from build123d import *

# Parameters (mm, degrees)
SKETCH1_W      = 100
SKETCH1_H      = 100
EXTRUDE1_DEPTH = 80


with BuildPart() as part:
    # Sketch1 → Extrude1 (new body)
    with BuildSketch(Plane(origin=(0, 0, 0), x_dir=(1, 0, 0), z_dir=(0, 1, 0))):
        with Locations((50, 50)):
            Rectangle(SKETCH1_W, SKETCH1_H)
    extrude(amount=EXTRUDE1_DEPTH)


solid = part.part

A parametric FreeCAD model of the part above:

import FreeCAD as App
import Part
import Sketcher

V = App.Vector
Q = App.Units.Quantity


def add_polygon(sketch, points):
    """Adds a closed chain of lines whose ends are joined by coincident constraints."""
    first, n = sketch.GeometryCount, len(points)
    for a, b in zip(points, points[1:] + points[:1]):
        sketch.addGeometry(Part.LineSegment(App.Vector(*a, 0), App.Vector(*b, 0)), False)
    for i in range(n):
        sketch.addConstraint(Sketcher.Constraint("Coincident", first + i, 2, first + (i + 1) % n, 1))

doc = App.newDocument("Part")
body = doc.addObject("PartDesign::Body", "Body")

# Sketch on XZ plane
sketch1 = body.newObject("Sketcher::SketchObject", "Sketch")
sketch1.AttachmentSupport = (doc.getObject("XZ_Plane"), [""])
sketch1.MapMode = "FlatFace"
add_polygon(sketch1, [(0, -100), (0, 0), (100, 0), (100, -100)])  # lines 0-3
sketch1.addConstraint([
    Sketcher.Constraint("Vertical", 0),
    Sketcher.Constraint("Horizontal", 1),
    Sketcher.Constraint("Vertical", 2),
    Sketcher.Constraint("Horizontal", 3),
    Sketcher.Constraint("Coincident", 0, 2, -1, 1),
    Sketcher.Constraint("Equal", 3, 0),
    Sketcher.Constraint("DistanceX", 1, 1, 1, 2, Q("100 mm")),
])
pad1 = body.newObject("PartDesign::Pad", "Pad")
pad1.Profile = sketch1
pad1.Length = 80
pad1.Reversed = True

doc.recompute()
